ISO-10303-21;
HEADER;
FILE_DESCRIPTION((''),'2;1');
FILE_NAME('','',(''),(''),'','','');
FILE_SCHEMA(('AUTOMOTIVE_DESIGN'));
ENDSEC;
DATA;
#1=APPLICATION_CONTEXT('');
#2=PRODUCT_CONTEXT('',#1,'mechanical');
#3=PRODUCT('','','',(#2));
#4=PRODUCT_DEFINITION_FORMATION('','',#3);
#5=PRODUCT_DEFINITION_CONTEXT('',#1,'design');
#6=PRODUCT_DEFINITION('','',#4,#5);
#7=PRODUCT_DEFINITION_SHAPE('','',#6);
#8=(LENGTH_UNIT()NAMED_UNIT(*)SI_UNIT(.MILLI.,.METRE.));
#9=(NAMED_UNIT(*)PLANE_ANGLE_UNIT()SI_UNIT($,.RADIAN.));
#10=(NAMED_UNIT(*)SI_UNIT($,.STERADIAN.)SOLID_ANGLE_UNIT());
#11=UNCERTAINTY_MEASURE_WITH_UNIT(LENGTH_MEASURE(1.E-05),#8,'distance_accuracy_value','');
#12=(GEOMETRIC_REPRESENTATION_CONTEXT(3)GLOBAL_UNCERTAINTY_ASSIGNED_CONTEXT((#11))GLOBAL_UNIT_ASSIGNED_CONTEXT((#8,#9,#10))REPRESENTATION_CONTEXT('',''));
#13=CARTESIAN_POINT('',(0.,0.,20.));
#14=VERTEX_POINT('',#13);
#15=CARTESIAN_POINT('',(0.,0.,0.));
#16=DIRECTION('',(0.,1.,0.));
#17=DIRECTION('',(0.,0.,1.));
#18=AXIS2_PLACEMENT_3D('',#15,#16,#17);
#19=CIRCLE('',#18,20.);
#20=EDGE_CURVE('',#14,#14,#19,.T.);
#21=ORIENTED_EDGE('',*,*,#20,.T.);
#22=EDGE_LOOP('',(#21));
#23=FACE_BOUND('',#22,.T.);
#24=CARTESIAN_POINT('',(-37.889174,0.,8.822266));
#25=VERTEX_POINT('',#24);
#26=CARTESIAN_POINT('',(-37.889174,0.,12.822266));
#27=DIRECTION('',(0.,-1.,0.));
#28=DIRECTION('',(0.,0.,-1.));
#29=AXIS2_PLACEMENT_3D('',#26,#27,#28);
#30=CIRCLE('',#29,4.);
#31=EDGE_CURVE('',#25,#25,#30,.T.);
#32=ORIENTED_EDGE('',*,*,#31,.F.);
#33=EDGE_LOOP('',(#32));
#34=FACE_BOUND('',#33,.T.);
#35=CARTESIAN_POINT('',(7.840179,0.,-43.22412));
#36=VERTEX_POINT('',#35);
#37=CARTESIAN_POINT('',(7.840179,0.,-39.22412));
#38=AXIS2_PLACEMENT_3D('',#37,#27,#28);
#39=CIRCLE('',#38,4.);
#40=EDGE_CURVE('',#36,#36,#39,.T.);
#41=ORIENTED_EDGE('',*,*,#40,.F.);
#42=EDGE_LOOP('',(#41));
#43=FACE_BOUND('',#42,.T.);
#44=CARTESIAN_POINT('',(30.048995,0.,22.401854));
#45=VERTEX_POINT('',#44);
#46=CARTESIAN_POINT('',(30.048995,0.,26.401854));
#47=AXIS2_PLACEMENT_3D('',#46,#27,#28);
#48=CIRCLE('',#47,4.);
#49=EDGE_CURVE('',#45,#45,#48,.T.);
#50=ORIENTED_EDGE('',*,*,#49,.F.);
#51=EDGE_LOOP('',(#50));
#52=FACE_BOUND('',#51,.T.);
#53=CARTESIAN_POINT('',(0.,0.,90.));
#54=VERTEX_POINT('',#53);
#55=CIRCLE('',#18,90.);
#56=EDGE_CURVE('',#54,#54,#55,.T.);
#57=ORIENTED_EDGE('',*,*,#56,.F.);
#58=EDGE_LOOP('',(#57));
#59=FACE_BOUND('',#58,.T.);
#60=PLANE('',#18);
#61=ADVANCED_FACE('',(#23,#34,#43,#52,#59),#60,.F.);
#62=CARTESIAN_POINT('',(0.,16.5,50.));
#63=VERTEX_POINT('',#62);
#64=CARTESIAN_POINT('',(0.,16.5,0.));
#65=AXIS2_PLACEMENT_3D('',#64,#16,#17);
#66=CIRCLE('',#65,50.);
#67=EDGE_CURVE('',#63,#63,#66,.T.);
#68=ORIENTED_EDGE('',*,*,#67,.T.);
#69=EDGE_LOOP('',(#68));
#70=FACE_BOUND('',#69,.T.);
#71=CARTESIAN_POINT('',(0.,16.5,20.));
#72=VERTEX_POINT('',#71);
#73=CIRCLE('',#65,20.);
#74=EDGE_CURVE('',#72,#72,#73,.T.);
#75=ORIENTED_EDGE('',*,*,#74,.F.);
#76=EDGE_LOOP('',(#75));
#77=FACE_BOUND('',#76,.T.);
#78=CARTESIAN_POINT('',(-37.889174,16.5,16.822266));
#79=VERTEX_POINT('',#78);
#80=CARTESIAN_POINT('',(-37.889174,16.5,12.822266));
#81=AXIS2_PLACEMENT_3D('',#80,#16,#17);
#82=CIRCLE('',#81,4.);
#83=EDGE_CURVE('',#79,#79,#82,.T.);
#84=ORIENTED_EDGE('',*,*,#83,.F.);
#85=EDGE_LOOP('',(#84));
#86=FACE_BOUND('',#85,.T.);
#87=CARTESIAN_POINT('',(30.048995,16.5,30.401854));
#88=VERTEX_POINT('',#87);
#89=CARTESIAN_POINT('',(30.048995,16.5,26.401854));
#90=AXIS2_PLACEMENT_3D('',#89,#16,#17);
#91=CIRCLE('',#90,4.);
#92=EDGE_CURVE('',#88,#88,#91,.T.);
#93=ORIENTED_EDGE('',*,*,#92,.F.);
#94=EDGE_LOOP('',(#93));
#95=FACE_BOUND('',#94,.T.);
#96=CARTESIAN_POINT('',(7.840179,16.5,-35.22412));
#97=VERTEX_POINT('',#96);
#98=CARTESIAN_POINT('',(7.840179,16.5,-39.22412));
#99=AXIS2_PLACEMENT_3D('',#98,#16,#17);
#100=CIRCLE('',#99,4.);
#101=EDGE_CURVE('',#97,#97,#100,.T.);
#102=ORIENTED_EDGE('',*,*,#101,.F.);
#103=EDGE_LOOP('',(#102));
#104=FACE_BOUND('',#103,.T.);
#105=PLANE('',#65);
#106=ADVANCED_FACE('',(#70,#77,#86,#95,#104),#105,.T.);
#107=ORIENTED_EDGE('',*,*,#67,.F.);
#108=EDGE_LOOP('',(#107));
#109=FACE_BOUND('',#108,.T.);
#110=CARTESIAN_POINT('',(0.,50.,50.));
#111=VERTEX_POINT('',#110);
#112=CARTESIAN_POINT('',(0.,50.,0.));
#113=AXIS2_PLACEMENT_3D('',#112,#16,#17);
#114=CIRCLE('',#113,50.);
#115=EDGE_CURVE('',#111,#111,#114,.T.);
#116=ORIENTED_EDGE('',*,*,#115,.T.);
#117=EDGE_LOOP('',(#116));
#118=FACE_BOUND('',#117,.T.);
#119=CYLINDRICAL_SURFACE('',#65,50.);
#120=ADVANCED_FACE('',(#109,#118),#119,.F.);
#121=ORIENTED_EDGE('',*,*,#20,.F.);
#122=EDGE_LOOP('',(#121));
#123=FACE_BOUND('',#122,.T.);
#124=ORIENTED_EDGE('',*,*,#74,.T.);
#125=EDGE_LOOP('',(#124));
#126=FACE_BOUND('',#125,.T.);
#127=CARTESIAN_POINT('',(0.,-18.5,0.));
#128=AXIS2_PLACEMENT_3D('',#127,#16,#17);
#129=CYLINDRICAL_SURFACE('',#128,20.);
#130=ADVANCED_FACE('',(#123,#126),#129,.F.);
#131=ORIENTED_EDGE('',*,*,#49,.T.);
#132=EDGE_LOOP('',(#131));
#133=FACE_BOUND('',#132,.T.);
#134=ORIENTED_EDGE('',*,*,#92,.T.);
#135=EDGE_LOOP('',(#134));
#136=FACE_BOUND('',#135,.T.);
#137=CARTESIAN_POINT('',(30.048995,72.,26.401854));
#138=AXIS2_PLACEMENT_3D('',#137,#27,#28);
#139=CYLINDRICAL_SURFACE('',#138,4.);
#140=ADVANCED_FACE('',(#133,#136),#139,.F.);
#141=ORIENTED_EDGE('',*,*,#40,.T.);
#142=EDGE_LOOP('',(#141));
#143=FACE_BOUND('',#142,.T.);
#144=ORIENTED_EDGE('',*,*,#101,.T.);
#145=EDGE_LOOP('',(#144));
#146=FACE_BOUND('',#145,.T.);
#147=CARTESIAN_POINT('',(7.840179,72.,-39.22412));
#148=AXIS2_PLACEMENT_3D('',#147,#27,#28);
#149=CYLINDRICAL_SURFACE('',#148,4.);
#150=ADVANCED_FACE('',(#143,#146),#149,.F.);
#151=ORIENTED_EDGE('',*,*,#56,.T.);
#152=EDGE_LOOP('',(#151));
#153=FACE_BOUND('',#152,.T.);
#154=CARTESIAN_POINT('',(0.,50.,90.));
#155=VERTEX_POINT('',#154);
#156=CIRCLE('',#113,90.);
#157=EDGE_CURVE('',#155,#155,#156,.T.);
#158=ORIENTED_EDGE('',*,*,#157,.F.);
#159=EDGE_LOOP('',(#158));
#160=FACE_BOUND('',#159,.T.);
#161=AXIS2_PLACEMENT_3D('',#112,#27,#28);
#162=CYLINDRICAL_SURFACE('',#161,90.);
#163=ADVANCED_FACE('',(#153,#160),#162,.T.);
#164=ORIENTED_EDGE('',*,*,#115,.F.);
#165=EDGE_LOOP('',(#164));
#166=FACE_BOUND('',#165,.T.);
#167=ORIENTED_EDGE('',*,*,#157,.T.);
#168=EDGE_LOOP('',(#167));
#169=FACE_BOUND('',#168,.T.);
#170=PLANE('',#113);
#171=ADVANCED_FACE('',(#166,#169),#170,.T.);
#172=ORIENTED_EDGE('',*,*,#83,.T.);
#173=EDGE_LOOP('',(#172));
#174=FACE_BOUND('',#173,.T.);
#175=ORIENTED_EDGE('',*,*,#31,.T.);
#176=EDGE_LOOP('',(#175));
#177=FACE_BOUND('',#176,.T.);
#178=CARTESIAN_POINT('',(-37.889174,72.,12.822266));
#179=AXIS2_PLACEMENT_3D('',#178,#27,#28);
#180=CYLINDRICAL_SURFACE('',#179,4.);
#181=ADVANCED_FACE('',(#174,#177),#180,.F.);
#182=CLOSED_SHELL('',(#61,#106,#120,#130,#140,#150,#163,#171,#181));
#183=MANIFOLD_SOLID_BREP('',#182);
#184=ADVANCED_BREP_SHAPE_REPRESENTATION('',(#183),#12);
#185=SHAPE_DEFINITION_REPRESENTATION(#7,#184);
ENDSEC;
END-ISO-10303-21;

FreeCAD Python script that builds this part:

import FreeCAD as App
import Part
import Sketcher

doc = App.newDocument("Part")
body = doc.addObject("PartDesign::Body", "Body")

# Sketch on XZ plane
sketch1 = body.newObject("Sketcher::SketchObject", "Sketch")
sketch1.AttachmentSupport = (doc.getObject("XZ_Plane"), [""])
sketch1.MapMode = "FlatFace"
sketch1.addGeometry(Part.Circle(App.Vector(0, 0, 0), App.Vector(0, 0, 1), 90), False)
sketch1.addConstraint(Sketcher.Constraint("Coincident", 0, 3, -1, 1))
sketch1.addConstraint(Sketcher.Constraint("Diameter", 0, 180.0))
pad1 = body.newObject("PartDesign::Pad", "Pad")
pad1.Profile = sketch1
pad1.Length = 50
pad1.Reversed = True

# Sketch on XZ plane
sketch2 = body.newObject("Sketcher::SketchObject", "Sketch001")
sketch2.AttachmentSupport = (doc.getObject("XZ_Plane"), [""])
sketch2.MapMode = "FlatFace"
sketch2.AttachmentOffset = App.Placement(App.Vector(0, 0, -50), App.Rotation())
sketch2.addGeometry(Part.Circle(App.Vector(0, 0, 0), App.Vector(0, 0, 1), 50), False)
sketch2.addConstraint(Sketcher.Constraint("Coincident", 0, 3, -1, 1))
sketch2.addConstraint(Sketcher.Constraint("Diameter", 0, 100.0))
pocket1 = body.newObject("PartDesign::Pocket", "Pocket")
pocket1.Profile = sketch2
pocket1.Length = 33.5
pocket1.Reversed = True

# Sketch on XZ plane
sketch3 = body.newObject("Sketcher::SketchObject", "Sketch002")
sketch3.AttachmentSupport = (doc.getObject("XZ_Plane"), [""])
sketch3.MapMode = "FlatFace"
sketch3.AttachmentOffset = App.Placement(App.Vector(0, 0, -16.5), App.Rotation())
sketch3.addGeometry(Part.Circle(App.Vector(0, 0, 0), App.Vector(0, 0, 1), 20), False)
sketch3.addConstraint(Sketcher.Constraint("Coincident", 0, 3, -1, 1))
sketch3.addConstraint(Sketcher.Constraint("Diameter", 0, 40.0))
pocket2 = body.newObject("PartDesign::Pocket", "Pocket001")
pocket2.Profile = sketch3
pocket2.Length = 35
pocket2.Reversed = True

# Sketch on XZ plane
sketch4 = body.newObject("Sketcher::SketchObject", "Sketch003")
sketch4.AttachmentSupport = (doc.getObject("XZ_Plane"), [""])
sketch4.MapMode = "FlatFace"
sketch4.addGeometry(Part.Circle(App.Vector(-37.9, 12.8, 0), App.Vector(0, 0, 1), 4), False)
sketch4.addGeometry(Part.Circle(App.Vector(7.8, -39.2, 0), App.Vector(0, 0, 1), 4), False)
sketch4.addGeometry(Part.Circle(App.Vector(30, 26.4, 0), App.Vector(0, 0, 1), 4), False)
sketch4.addConstraint(Sketcher.Constraint("Equal", 0, 1))
sketch4.addConstraint(Sketcher.Constraint("Equal", 1, 2))
sketch4.addConstraint(Sketcher.Constraint("Diameter", 0, 8.0))
sketch4.addConstraint(Sketcher.Constraint("DistanceX", -1, 1, 1, 3, 7.840179))
sketch4.addConstraint(Sketcher.Constraint("DistanceY", 1, 3, -1, 1, 39.22412))
sketch4.addConstraint(Sketcher.Constraint("DistanceX", 0, 3, 2, 3, 67.938169))
sketch4.addConstraint(Sketcher.Constraint("DistanceX", 0, 3, -1, 1, 37.889174))
sketch4.addConstraint(Sketcher.Constraint("DistanceY", -1, 1, 0, 3, 12.822266))
sketch4.addConstraint(Sketcher.Constraint("DistanceY", -1, 1, 2, 3, 26.401854))
pocket3 = body.newObject("PartDesign::Pocket", "Pocket002")
pocket3.Profile = sketch4
pocket3.Length = 72

doc.recompute()
